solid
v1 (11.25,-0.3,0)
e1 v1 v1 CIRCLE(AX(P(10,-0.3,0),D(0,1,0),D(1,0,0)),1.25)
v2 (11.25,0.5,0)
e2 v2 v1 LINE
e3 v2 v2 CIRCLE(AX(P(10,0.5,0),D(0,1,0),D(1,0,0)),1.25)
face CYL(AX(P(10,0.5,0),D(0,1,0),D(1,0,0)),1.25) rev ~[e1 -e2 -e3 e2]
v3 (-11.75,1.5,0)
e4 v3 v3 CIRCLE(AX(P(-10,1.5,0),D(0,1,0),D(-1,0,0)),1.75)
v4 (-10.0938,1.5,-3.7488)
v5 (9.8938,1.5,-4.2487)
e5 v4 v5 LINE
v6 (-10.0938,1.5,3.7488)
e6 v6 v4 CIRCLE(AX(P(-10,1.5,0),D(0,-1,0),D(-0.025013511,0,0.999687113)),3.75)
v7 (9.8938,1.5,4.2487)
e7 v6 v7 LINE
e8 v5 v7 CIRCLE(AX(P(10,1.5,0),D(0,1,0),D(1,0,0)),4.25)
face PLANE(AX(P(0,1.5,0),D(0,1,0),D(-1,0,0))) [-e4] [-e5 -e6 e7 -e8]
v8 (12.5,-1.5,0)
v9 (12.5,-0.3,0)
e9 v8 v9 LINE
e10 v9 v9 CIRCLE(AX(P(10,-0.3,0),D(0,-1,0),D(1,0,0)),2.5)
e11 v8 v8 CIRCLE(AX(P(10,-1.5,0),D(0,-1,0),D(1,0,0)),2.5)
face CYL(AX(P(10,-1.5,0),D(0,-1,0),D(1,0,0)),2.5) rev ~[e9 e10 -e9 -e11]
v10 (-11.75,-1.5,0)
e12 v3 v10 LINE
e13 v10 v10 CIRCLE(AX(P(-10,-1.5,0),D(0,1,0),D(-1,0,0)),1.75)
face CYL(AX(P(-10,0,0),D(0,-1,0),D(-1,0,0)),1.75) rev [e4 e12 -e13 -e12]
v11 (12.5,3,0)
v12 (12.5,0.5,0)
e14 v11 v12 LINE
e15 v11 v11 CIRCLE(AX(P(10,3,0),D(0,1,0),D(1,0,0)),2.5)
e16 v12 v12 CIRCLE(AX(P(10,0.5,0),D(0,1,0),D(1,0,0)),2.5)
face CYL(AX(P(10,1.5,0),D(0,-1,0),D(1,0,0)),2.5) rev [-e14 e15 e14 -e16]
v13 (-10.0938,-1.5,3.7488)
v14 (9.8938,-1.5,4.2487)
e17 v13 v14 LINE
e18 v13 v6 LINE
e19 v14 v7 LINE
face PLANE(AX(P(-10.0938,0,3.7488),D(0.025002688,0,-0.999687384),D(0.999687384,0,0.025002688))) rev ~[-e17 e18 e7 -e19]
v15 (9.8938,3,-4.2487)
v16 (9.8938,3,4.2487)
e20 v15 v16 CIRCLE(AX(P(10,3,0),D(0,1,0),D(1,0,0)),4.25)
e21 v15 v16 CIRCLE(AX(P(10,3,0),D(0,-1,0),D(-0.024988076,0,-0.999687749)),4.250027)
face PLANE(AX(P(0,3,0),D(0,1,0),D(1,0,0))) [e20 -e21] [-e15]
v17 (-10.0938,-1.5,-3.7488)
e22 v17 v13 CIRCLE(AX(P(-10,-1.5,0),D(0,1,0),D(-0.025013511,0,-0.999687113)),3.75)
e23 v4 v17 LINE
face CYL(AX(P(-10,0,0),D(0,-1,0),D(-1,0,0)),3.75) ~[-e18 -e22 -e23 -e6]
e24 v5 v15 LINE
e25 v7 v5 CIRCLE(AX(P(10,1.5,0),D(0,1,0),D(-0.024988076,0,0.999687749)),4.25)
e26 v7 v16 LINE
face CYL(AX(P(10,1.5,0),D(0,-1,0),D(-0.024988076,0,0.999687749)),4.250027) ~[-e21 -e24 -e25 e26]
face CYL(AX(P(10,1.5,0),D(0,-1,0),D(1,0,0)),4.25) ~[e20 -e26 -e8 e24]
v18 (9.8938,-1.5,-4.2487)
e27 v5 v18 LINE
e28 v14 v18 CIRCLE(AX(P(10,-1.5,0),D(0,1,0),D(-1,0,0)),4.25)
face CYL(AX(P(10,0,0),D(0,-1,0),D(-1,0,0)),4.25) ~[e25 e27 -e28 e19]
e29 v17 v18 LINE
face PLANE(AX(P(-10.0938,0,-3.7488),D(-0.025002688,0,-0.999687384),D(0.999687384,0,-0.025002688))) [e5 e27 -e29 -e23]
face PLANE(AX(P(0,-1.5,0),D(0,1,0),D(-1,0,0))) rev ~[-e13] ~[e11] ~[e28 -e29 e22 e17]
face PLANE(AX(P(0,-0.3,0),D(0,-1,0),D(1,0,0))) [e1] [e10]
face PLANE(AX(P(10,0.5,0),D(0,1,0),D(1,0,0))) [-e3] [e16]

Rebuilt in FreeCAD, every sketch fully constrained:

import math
import FreeCAD as App
import Part
import Sketcher
from FreeCAD import Vector

doc = App.newDocument("Part")
body = doc.addObject("PartDesign::Body", "Body")

# Sketch on XZ plane
sketch1 = body.newObject("Sketcher::SketchObject", "Sketch")
sketch1.AttachmentSupport = (doc.getObject("XZ_Plane"), [""])
sketch1.MapMode = "FlatFace"
sketch1.addGeometry([
    Part.ArcOfCircle(Part.Circle(Vector(-10, 0, 0), Vector(0, 0, 1), 3.75), math.radians(91.433318), math.radians(268.566682)),  # 0
    Part.LineSegment(Vector(-10.0938, 3.7488, 0), Vector(9.8938, 4.2487, 0)),  # 1
    Part.ArcOfCircle(Part.Circle(Vector(10, 0, 0), Vector(0, 0, 1), 4.25), math.radians(-91.43186), math.radians(91.43186)),  # 2
    Part.LineSegment(Vector(9.8938, -4.2487, 0), Vector(-10.0938, -3.7488, 0)),  # 3
    Part.Circle(Vector(-10, 0, 0), Vector(0, 0, 1), 1.75),  # 4
], False)
sketch1.addConstraint([
    Sketcher.Constraint("Tangent", 0, 1, 1, 1),
    Sketcher.Constraint("Tangent", 1, 2, 2, 2),
    Sketcher.Constraint("Tangent", 2, 1, 3, 1),
    Sketcher.Constraint("Tangent", 3, 2, 0, 2),
    Sketcher.Constraint("Coincident", 4, 3, 0, 3),
    Sketcher.Constraint("Symmetric", 0, 3, 2, 3, -1, 1),
    Sketcher.Constraint("PointOnObject", 0, 3, -1),
    Sketcher.Constraint("Diameter", 4, 3.5),
    Sketcher.Constraint("Radius", 0, 3.75),
    Sketcher.Constraint("DistanceX", 0, 3, -1, 1, 10.0),
    Sketcher.Constraint("Radius", 2, 4.25),
])
pad1 = body.newObject("PartDesign::Pad", "Pad")
pad1.Profile = sketch1
pad1.Length = 3
pad1.Midplane = True

# Sketch on XZ plane
sketch2 = body.newObject("Sketcher::SketchObject", "Sketch001")
sketch2.AttachmentSupport = (doc.getObject("XZ_Plane"), [""])
sketch2.MapMode = "FlatFace"
sketch2.AttachmentOffset = App.Placement(Vector(0, 0, -1.5), App.Rotation())
sketch2.addGeometry([
    Part.Circle(Vector(10, 0, 0), Vector(0, 0, 1), 4.250027),
    Part.Circle(Vector(10, 0, 0), Vector(0, 0, 1), 2.5),
], False)
sketch2.addConstraint([
    Sketcher.Constraint("Coincident", 1, 3, 0, 3),
    Sketcher.Constraint("PointOnObject", 0, 3, -1),
    Sketcher.Constraint("Diameter", 1, 5.0),
    Sketcher.Constraint("Diameter", 0, 8.5),
    Sketcher.Constraint("DistanceX", -1, 1, 0, 3, 10.0),
])
pad2 = body.newObject("PartDesign::Pad", "Pad001")
pad2.Profile = sketch2
pad2.Length = 1.5
pad2.Reversed = True

# Sketch on XZ plane
sketch3 = body.newObject("Sketcher::SketchObject", "Sketch002")
sketch3.AttachmentSupport = (doc.getObject("XZ_Plane"), [""])
sketch3.MapMode = "FlatFace"
sketch3.AttachmentOffset = App.Placement(Vector(0, 0, -1.5), App.Rotation())
sketch3.addGeometry(Part.Circle(Vector(10, 0, 0), Vector(0, 0, 1), 2.5), False)
sketch3.addConstraint([
    Sketcher.Constraint("PointOnObject", 0, 3, -1),
    Sketcher.Constraint("Diameter", 0, 5.0),
    Sketcher.Constraint("DistanceX", -1, 1, 0, 3, 10.0),
])
pocket1 = body.newObject("PartDesign::Pocket", "Pocket")
pocket1.Profile = sketch3
pocket1.Length = 1
pocket1.Reversed = True

# Sketch on XZ plane
sketch4 = body.newObject("Sketcher::SketchObject", "Sketch003")
sketch4.AttachmentSupport = (doc.getObject("XZ_Plane"), [""])
sketch4.MapMode = "FlatFace"
sketch4.AttachmentOffset = App.Placement(Vector(0, 0, -0.5), App.Rotation())
sketch4.addGeometry(Part.Circle(Vector(10, 0, 0), Vector(0, 0, 1), 1.25), False)
sketch4.addConstraint([
    Sketcher.Constraint("PointOnObject", 0, 3, -1),
    Sketcher.Constraint("Diameter", 0, 2.5),
    Sketcher.Constraint("DistanceX", -1, 1, 0, 3, 10.0),
])
pocket2 = body.newObject("PartDesign::Pocket", "Pocket001")
pocket2.Profile = sketch4
pocket2.Length = 0.8
pocket2.Reversed = True

# Sketch on XZ plane
sketch5 = body.newObject("Sketcher::SketchObject", "Sketch004")
sketch5.AttachmentSupport = (doc.getObject("XZ_Plane"), [""])
sketch5.MapMode = "FlatFace"
sketch5.AttachmentOffset = App.Placement(Vector(0, 0, 1.5), App.Rotation())
sketch5.addGeometry(Part.Circle(Vector(10, 0, 0), Vector(0, 0, 1), 2.5), False)
sketch5.addConstraint([
    Sketcher.Constraint("PointOnObject", 0, 3, -1),
    Sketcher.Constraint("Diameter", 0, 5.0),
    Sketcher.Constraint("DistanceX", -1, 1, 0, 3, 10.0),
])
pocket3 = body.newObject("PartDesign::Pocket", "Pocket002")
pocket3.Profile = sketch5
pocket3.Length = 1.2

doc.recompute()
